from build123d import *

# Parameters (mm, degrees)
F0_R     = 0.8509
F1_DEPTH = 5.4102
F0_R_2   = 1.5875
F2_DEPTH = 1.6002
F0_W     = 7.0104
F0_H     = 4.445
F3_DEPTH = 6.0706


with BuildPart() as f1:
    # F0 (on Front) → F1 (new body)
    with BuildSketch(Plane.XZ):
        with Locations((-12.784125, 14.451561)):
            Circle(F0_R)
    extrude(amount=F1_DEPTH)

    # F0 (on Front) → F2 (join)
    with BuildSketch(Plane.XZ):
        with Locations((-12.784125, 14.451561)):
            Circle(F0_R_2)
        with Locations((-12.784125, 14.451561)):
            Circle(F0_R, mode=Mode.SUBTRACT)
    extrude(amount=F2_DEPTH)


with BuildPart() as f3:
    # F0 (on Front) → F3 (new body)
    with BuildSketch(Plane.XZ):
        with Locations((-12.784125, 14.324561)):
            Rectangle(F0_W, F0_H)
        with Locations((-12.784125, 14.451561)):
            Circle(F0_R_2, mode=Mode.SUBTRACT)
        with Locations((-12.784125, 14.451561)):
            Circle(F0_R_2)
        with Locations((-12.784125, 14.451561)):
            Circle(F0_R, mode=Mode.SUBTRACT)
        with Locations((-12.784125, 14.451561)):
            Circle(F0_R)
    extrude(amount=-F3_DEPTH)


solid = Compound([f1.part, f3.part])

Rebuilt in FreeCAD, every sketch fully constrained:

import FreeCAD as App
import Part
import Sketcher
from FreeCAD import Vector
Q = App.Units.Quantity

doc = App.newDocument("Part")
body = doc.addObject("PartDesign::Body", "Body")

# Sketch on XZ plane
sketch1 = doc.addObject("Sketcher::SketchObject", "Sketch")
body.addObject(sketch1)
sketch1.AttachmentSupport = (doc.XZ_Plane, [""])
sketch1.MapMode = "FlatFace"
sketch1.addGeometry(Part.Circle(Vector(-12.784125, 14.451561, 0), Vector(0, 0, 1), 0.8509), False)
sketch1.addConstraint(Sketcher.Constraint("Diameter", 0, Q("0.067 in")))
sketch1.addConstraint(Sketcher.Constraint("DistanceY", -1, 1, 0, 3, 14.451561))
sketch1.addConstraint(Sketcher.Constraint("DistanceX", 0, 3, -1, 1, 12.784125))
pad1 = doc.addObject("PartDesign::Pad", "Pad")
body.addObject(pad1)
pad1.Profile = sketch1
pad1.Length = Q("0.213 in")

# Sketch on XZ plane
sketch2 = doc.addObject("Sketcher::SketchObject", "Sketch001")
body.addObject(sketch2)
sketch2.AttachmentSupport = (doc.XZ_Plane, [""])
sketch2.MapMode = "FlatFace"
sketch2.addGeometry(Part.Circle(Vector(-12.784125, 14.451561, 0), Vector(0, 0, 1), 1.5875), False)
sketch2.addGeometry(Part.Circle(Vector(-12.784125, 14.451561, 0), Vector(0, 0, 1), 0.8509), False)
sketch2.addConstraint(Sketcher.Constraint("Coincident", 1, 3, 0, 3))
sketch2.addConstraint(Sketcher.Constraint("Diameter", 0, Q("0.125 in")))
sketch2.addConstraint(Sketcher.Constraint("Diameter", 1, Q("0.067 in")))
sketch2.addConstraint(Sketcher.Constraint("DistanceY", -1, 1, 0, 3, 14.451561))
sketch2.addConstraint(Sketcher.Constraint("DistanceX", 0, 3, -1, 1, 12.784125))
pad2 = doc.addObject("PartDesign::Pad", "Pad001")
body.addObject(pad2)
pad2.Profile = sketch2
pad2.Length = Q("0.063 in")
body2 = doc.addObject("PartDesign::Body", "Body001")

# Sketch on XZ plane
sketch3 = doc.addObject("Sketcher::SketchObject", "Sketch002")
body2.addObject(sketch3)
sketch3.AttachmentSupport = (doc.getObject("XZ_Plane001"), [""])
sketch3.MapMode = "FlatFace"
sketch3.addGeometry(Part.LineSegment(Vector(-16.289325, 16.547061, 0), Vector(-16.289325, 12.102061, 0)), False)
sketch3.addGeometry(Part.LineSegment(Vector(-16.289325, 12.102061, 0), Vector(-9.278925, 12.102061, 0)), False)
sketch3.addGeometry(Part.LineSegment(Vector(-9.278925, 12.102061, 0), Vector(-9.278925, 16.547061, 0)), False)
sketch3.addGeometry(Part.LineSegment(Vector(-9.278925, 16.547061, 0), Vector(-16.289325, 16.547061, 0)), False)
sketch3.addConstraint(Sketcher.Constraint("Coincident", 0, 2, 1, 1))
sketch3.addConstraint(Sketcher.Constraint("Coincident", 1, 2, 2, 1))
sketch3.addConstraint(Sketcher.Constraint("Coincident", 2, 2, 3, 1))
sketch3.addConstraint(Sketcher.Constraint("Coincident", 3, 2, 0, 1))
sketch3.addConstraint(Sketcher.Constraint("Vertical", 0))
sketch3.addConstraint(Sketcher.Constraint("Horizontal", 1))
sketch3.addConstraint(Sketcher.Constraint("Vertical", 2))
sketch3.addConstraint(Sketcher.Constraint("Horizontal", 3))
sketch3.addConstraint(Sketcher.Constraint("DistanceX", 1, 1, 1, 2, Q("0.276 in")))
sketch3.addConstraint(Sketcher.Constraint("DistanceY", 0, 2, 0, 1, Q("0.175 in")))
sketch3.addConstraint(Sketcher.Constraint("DistanceY", -1, 1, 0, 2, 12.102061))
sketch3.addConstraint(Sketcher.Constraint("DistanceX", 0, 2, -1, 1, 16.289325))
pad3 = doc.addObject("PartDesign::Pad", "Pad002")
body2.addObject(pad3)
pad3.Profile = sketch3
pad3.Length = Q("0.239 in")
pad3.Reversed = True

doc.recompute()
